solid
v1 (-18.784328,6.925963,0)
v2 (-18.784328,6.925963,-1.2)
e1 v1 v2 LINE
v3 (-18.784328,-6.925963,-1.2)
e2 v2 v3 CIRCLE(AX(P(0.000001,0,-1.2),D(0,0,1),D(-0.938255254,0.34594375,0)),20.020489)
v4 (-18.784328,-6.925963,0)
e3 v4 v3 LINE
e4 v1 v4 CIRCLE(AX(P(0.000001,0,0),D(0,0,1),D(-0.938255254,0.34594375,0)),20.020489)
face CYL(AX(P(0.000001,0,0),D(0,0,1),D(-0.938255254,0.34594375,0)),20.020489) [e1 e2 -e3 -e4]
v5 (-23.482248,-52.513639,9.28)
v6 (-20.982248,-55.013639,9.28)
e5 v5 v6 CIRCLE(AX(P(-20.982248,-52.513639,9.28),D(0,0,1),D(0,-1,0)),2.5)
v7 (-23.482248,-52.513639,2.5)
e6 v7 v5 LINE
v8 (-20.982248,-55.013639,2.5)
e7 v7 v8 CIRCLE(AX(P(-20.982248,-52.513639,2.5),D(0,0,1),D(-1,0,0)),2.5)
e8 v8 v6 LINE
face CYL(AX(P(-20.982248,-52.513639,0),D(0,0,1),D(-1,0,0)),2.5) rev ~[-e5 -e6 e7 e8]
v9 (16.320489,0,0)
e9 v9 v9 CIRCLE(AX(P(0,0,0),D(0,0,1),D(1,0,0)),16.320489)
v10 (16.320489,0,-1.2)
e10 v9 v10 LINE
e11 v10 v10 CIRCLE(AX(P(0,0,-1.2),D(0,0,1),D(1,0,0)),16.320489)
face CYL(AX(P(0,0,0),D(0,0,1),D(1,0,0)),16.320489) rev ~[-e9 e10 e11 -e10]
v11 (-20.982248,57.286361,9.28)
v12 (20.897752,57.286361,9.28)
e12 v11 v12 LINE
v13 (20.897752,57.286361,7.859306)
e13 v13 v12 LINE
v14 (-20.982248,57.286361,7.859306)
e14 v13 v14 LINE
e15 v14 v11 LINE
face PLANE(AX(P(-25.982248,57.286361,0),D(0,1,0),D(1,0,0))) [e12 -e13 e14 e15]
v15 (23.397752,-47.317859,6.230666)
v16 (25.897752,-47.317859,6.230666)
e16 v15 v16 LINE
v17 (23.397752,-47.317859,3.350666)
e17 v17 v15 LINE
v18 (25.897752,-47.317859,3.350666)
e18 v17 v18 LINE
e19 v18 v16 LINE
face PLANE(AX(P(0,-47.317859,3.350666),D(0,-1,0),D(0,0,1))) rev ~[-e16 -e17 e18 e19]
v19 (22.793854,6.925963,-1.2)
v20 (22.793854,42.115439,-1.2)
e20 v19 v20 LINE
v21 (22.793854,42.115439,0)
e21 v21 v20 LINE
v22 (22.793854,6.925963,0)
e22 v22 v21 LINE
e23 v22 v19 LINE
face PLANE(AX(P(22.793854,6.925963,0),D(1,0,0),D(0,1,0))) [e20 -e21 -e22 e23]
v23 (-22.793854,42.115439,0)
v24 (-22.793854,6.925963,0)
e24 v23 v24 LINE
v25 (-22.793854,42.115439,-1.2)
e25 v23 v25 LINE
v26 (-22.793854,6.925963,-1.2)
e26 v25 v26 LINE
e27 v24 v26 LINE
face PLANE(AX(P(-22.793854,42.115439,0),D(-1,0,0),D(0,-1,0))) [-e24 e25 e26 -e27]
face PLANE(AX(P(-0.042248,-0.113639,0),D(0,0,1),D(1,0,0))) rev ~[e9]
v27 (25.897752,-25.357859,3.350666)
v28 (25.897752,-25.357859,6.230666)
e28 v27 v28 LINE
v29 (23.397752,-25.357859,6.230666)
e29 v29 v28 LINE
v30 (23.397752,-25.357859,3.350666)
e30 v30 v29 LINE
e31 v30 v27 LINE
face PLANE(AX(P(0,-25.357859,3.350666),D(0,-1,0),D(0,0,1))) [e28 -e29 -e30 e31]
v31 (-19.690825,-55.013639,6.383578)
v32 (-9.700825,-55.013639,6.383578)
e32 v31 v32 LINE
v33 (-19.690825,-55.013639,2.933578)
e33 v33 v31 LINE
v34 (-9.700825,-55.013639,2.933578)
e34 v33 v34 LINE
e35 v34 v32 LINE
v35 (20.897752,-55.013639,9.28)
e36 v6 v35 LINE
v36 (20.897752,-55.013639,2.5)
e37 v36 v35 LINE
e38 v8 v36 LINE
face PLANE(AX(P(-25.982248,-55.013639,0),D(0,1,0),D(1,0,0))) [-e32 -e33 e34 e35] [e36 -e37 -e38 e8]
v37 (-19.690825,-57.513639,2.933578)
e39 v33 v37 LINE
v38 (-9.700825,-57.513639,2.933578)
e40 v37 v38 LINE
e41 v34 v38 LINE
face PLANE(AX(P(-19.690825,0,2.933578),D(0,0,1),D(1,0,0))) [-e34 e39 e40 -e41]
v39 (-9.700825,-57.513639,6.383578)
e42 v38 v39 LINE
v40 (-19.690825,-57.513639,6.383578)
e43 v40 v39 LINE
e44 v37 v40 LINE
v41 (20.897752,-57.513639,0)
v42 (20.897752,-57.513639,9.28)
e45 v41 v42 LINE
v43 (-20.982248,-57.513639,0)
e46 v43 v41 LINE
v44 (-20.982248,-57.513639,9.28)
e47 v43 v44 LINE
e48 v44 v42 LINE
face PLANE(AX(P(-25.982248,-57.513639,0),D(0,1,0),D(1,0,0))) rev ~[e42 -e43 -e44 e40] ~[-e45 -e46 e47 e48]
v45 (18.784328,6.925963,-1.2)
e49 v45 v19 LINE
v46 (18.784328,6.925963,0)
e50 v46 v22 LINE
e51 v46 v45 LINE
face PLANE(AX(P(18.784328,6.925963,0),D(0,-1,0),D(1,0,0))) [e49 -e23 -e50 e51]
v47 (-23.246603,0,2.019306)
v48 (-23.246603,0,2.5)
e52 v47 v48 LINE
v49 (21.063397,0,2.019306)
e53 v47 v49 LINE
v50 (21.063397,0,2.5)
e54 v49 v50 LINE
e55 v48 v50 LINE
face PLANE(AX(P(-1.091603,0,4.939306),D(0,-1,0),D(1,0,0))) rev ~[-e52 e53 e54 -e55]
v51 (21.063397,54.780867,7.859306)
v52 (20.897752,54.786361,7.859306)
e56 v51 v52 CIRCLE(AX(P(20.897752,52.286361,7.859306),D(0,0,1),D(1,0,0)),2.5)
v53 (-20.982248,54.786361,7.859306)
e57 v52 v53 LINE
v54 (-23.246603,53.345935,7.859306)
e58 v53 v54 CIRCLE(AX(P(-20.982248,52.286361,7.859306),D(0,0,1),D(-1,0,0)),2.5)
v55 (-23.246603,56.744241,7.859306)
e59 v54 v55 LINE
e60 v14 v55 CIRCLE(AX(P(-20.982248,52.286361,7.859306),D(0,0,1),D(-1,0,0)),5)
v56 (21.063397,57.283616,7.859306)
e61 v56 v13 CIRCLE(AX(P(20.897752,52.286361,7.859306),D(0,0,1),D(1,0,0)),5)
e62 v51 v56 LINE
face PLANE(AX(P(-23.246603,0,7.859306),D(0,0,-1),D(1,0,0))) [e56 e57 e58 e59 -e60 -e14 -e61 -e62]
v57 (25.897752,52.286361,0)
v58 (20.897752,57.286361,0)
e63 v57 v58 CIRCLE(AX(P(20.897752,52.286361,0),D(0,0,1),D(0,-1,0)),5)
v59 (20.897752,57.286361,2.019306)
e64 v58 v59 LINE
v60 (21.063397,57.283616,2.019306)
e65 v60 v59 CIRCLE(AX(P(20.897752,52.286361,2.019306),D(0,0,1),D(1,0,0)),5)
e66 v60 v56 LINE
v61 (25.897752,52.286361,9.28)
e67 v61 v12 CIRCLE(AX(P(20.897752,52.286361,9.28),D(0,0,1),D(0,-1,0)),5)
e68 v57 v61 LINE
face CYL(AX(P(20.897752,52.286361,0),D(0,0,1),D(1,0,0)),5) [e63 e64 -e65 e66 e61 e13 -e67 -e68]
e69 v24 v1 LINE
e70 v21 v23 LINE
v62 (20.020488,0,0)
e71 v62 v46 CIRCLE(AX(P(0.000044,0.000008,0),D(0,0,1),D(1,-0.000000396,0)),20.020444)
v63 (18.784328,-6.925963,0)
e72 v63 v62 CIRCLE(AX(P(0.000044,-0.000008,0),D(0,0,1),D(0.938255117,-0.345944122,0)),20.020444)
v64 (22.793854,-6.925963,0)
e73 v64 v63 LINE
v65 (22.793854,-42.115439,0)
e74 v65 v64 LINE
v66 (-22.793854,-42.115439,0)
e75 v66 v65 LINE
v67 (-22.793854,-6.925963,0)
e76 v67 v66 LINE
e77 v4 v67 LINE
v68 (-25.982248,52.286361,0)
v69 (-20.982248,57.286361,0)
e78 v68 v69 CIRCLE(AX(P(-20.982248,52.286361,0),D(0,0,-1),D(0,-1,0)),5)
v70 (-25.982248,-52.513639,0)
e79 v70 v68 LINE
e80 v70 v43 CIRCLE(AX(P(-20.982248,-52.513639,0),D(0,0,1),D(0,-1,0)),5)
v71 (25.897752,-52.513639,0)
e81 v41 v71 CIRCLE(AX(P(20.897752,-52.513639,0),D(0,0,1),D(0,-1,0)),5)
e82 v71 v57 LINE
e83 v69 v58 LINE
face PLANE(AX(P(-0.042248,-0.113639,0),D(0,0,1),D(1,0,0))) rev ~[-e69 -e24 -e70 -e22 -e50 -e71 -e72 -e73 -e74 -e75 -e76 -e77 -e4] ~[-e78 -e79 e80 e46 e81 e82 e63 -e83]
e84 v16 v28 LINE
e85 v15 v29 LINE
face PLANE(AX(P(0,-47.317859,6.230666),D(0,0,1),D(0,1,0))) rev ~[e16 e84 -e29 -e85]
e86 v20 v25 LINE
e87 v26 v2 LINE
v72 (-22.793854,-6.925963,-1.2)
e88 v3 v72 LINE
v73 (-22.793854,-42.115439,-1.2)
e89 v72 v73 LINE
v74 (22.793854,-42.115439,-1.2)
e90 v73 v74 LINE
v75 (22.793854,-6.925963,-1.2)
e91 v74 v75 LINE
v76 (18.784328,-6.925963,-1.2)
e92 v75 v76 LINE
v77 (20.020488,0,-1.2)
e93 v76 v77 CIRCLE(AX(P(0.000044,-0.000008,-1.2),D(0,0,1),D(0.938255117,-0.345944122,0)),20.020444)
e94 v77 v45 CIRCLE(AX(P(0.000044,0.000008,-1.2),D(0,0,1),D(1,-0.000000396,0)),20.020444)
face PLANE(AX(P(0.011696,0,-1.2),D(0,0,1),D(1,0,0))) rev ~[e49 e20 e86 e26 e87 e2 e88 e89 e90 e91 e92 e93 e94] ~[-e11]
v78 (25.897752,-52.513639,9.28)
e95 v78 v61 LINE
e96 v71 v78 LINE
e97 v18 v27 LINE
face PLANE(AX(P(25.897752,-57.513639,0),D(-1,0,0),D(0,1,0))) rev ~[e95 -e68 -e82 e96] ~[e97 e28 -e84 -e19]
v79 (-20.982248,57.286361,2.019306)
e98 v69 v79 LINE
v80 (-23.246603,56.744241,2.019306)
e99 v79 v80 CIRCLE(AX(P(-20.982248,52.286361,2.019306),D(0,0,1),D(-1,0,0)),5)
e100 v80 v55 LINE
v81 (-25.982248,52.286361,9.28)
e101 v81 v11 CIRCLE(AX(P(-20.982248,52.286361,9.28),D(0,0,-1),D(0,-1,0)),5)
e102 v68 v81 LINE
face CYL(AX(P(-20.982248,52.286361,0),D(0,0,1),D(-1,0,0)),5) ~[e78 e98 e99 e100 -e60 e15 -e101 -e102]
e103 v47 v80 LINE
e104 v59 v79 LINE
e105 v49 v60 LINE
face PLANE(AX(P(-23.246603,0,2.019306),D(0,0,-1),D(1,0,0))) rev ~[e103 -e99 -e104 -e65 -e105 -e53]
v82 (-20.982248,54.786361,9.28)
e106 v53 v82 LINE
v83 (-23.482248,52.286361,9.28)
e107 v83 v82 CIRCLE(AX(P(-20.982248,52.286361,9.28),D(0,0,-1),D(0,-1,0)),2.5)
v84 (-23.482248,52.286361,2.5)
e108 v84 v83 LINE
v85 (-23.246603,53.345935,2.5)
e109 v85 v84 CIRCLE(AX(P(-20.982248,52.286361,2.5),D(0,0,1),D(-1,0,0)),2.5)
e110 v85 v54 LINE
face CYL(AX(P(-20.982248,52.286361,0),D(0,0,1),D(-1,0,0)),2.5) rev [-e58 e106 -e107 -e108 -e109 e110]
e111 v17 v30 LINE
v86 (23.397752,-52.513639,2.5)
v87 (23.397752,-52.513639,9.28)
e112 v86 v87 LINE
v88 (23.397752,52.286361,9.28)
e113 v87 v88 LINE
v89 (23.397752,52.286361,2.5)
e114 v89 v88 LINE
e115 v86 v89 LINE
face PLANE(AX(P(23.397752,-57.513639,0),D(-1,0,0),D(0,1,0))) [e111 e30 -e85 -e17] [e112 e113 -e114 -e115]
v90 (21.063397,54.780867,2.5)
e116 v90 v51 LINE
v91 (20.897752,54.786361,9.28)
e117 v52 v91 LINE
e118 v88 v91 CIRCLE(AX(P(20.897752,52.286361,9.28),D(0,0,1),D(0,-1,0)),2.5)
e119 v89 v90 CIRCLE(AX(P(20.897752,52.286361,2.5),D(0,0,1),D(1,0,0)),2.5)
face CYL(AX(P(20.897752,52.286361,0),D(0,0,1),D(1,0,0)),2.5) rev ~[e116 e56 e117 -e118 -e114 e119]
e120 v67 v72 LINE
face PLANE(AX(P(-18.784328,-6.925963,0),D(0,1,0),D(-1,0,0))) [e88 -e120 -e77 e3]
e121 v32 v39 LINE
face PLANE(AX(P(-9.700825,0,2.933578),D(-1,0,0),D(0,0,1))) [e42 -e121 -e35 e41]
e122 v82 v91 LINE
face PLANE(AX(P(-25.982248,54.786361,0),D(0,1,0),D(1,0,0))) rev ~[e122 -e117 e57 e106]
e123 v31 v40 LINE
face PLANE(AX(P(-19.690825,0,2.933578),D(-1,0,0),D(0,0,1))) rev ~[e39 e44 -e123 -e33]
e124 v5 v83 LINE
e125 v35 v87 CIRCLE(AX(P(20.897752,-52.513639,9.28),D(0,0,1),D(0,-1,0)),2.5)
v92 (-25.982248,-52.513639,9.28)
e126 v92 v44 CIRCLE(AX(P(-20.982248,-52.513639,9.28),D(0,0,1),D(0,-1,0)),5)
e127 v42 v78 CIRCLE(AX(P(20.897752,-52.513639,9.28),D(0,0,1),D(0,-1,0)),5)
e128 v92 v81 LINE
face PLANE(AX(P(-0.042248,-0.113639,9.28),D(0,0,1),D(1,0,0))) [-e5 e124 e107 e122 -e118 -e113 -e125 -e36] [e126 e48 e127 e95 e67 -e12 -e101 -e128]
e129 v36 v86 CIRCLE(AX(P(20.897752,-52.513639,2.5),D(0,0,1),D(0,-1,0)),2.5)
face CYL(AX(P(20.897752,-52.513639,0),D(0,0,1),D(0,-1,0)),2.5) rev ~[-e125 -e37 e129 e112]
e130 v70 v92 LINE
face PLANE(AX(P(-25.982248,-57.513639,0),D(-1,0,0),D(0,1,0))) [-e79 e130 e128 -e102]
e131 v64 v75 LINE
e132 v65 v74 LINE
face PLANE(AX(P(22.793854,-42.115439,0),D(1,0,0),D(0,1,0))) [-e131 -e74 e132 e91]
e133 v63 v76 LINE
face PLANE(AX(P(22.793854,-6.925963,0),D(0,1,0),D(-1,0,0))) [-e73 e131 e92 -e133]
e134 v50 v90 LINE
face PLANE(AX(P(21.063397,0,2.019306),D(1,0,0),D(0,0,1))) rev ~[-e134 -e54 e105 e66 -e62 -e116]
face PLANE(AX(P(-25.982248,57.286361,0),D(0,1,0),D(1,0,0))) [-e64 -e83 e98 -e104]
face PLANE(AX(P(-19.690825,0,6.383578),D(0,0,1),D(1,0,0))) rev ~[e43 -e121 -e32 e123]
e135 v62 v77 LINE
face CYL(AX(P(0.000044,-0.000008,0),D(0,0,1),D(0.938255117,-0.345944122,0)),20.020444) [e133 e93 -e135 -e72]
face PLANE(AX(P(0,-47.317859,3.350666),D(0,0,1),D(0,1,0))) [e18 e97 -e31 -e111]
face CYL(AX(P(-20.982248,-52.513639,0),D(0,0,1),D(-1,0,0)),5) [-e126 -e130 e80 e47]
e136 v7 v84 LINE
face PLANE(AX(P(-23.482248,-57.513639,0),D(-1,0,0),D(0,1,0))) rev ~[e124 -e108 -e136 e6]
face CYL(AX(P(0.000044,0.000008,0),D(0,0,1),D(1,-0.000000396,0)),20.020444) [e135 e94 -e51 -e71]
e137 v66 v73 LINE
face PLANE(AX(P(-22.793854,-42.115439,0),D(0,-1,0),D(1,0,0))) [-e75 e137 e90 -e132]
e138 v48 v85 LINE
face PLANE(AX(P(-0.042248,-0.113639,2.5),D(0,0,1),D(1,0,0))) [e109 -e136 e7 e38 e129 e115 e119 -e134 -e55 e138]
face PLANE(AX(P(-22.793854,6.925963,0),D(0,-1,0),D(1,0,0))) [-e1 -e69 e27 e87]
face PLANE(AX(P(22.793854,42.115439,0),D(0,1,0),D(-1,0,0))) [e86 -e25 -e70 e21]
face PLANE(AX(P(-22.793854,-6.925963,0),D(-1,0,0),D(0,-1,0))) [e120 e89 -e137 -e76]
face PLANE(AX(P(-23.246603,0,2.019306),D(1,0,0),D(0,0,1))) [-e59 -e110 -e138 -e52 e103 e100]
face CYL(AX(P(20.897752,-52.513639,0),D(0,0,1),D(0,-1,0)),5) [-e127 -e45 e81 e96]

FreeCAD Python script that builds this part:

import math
import FreeCAD as App
import Part
import Sketcher
Q = App.Units.Quantity


def edges_at(feature, points):
    """Names of the edges that pass closest to the given points."""
    edges = feature.Shape.Edges
    near = lambda p: min(range(len(edges)), key=lambda i: edges[i].distToShape(Part.Vertex(*p))[0])
    return sorted({f"Edge{near(p) + 1}" for p in points})


def faces_at(feature, points):
    """Names of the faces that lie closest to the given points."""
    faces = feature.Shape.Faces
    near = lambda p: min(range(len(faces)), key=lambda i: faces[i].distToShape(Part.Vertex(*p))[0])
    return sorted({f"Face{near(p) + 1}" for p in points})


def add_polygon(sketch, points):
    """Adds a closed chain of lines whose ends are joined by coincident constraints."""
    first, n = sketch.GeometryCount, len(points)
    for a, b in zip(points, points[1:] + points[:1]):
        sketch.addGeometry(Part.LineSegment(App.Vector(*a, 0), App.Vector(*b, 0)), False)
    for i in range(n):
        sketch.addConstraint(Sketcher.Constraint("Coincident", first + i, 2, first + (i + 1) % n, 1))

doc = App.newDocument("Part")
params = doc.addObject("Spreadsheet::Sheet", "Params")
for row, (alias, value) in enumerate([
    ("sketch1_height", "114.8 mm"),
    ("sketch1_width", "51.88 mm"),
    ("pad1_length", "9.28 mm"),
    ("fillet_radius", "5 mm"),
    ("thickness_wall", "2.5 mm"),
    ("sketch2_width", "9.99 mm"),
    ("sketch2_height", "3.45 mm"),
    ("pocket1_length", "69.5 mm"),
    ("sketch3_width", "21.96 mm"),
    ("sketch3_height", "2.88 mm"),
    ("pocket2_length", "36.6 mm"),
    ("sketch4_width", "44.31 mm"),
    ("sketch4_height", "5.84 mm"),
    ("pocket3_length", "65.7 mm"),
    ("pad2_length", "1.2 mm"),
], start=1):
    params.set(f"A{row}", alias)
    params.set(f"B{row}", "=" + value)
    params.setAlias(f"B{row}", alias)

body = doc.addObject("PartDesign::Body", "Body")

# Sketch on XY plane
sketch1 = body.newObject("Sketcher::SketchObject", "Sketch")
sketch1.AttachmentSupport = (doc.getObject("XY_Plane"), [""])
sketch1.MapMode = "FlatFace"
add_polygon(sketch1, [(-26, 57), (-26, -58), (26, -58), (26, 57)])  # lines 0-3
sketch1.addConstraint([
    Sketcher.Constraint("Vertical", 0),
    Sketcher.Constraint("Horizontal", 1),
    Sketcher.Constraint("Vertical", 2),
    Sketcher.Constraint("Horizontal", 3),
    Sketcher.Constraint("DistanceY", 0, 2, 0, 1, Q("114.8 mm")),
    Sketcher.Constraint("DistanceX", 1, 1, 1, 2, Q("51.88 mm")),
    Sketcher.Constraint("DistanceY", 0, 2, -1, 1, Q("57.513639 mm")),
    Sketcher.Constraint("DistanceX", 0, 2, -1, 1, Q("25.982248 mm")),
])
sketch1.setExpression("Constraints[8]", "Params.sketch1_height")
sketch1.setExpression("Constraints[9]", "Params.sketch1_width")
pad1 = body.newObject("PartDesign::Pad", "Pad")
pad1.Profile = sketch1
pad1.setExpression("Length", "Params.pad1_length")
doc.recompute()

fillet = body.newObject("PartDesign::Fillet", "Fillet")
fillet.Base = (pad1, edges_at(pad1, [
    (25.898, 57.286, 4.64),
    (25.898, -57.514, 4.64),
    (-25.982, 57.286, 4.64),
    (-25.982, -57.514, 4.64),
]))
fillet.setExpression("Radius", "Params.fillet_radius")
doc.recompute()

thickness = body.newObject("PartDesign::Thickness", "Thickness")
thickness.Base = (fillet, faces_at(fillet, [(-0.042, -0.114, 9.28)]))
thickness.setExpression("Value", "Params.thickness_wall")
thickness.Reversed = True
thickness.Join = "Arc"

# Sketch on XZ plane
sketch2 = body.newObject("Sketcher::SketchObject", "Sketch001")
sketch2.AttachmentSupport = (doc.getObject("XZ_Plane"), [""])
sketch2.MapMode = "FlatFace"
add_polygon(sketch2, [(-19.7, 6.4), (-19.7, 2.9), (-9.7, 2.9), (-9.7, 6.4)])  # lines 0-3
sketch2.addConstraint([
    Sketcher.Constraint("Vertical", 0),
    Sketcher.Constraint("Horizontal", 1),
    Sketcher.Constraint("Vertical", 2),
    Sketcher.Constraint("Horizontal", 3),
    Sketcher.Constraint("DistanceX", 1, 1, 1, 2, Q("9.99 mm")),
    Sketcher.Constraint("DistanceY", 0, 2, 0, 1, Q("3.45 mm")),
    Sketcher.Constraint("DistanceX", 0, 2, -1, 1, Q("19.690825 mm")),
    Sketcher.Constraint("DistanceY", -1, 1, 0, 2, Q("2.933578 mm")),
])
sketch2.setExpression("Constraints[8]", "Params.sketch2_width")
sketch2.setExpression("Constraints[9]", "Params.sketch2_height")
pocket1 = body.newObject("PartDesign::Pocket", "Pocket")
pocket1.Profile = sketch2
pocket1.setExpression("Length", "Params.pocket1_length")
pocket1.Reversed = True

# Sketch on YZ plane
sketch3 = body.newObject("Sketcher::SketchObject", "Sketch002")
sketch3.AttachmentSupport = (doc.getObject("YZ_Plane"), [""])
sketch3.MapMode = "FlatFace"
add_polygon(sketch3, [(-47.3, 6.2), (-47.3, 3.4), (-25.4, 3.4), (-25.4, 6.2)])  # lines 0-3
sketch3.addConstraint([
    Sketcher.Constraint("Vertical", 0),
    Sketcher.Constraint("Horizontal", 1),
    Sketcher.Constraint("Vertical", 2),
    Sketcher.Constraint("Horizontal", 3),
    Sketcher.Constraint("DistanceX", 1, 1, 1, 2, Q("21.96 mm")),
    Sketcher.Constraint("DistanceY", 0, 2, 0, 1, Q("2.88 mm")),
    Sketcher.Constraint("DistanceX", 0, 2, -1, 1, Q("47.317859 mm")),
    Sketcher.Constraint("DistanceY", -1, 1, 0, 2, Q("3.350666 mm")),
])
sketch3.setExpression("Constraints[8]", "Params.sketch3_width")
sketch3.setExpression("Constraints[9]", "Params.sketch3_height")
pocket2 = body.newObject("PartDesign::Pocket", "Pocket001")
pocket2.Profile = sketch3
pocket2.setExpression("Length", "Params.pocket2_length")
pocket2.Reversed = True

# Sketch on XZ plane
sketch4 = body.newObject("Sketcher::SketchObject", "Sketch003")
sketch4.AttachmentSupport = (doc.getObject("XZ_Plane"), [""])
sketch4.MapMode = "FlatFace"
add_polygon(sketch4, [(-23, 8), (-23, 2), (21, 2), (21, 8)])  # lines 0-3
sketch4.addConstraint([
    Sketcher.Constraint("Vertical", 0),
    Sketcher.Constraint("Horizontal", 1),
    Sketcher.Constraint("Vertical", 2),
    Sketcher.Constraint("Horizontal", 3),
    Sketcher.Constraint("DistanceX", 1, 1, 1, 2, Q("44.31 mm")),
    Sketcher.Constraint("DistanceY", 0, 2, 0, 1, Q("5.84 mm")),
    Sketcher.Constraint("DistanceX", 0, 2, -1, 1, Q("23.246603 mm")),
    Sketcher.Constraint("DistanceY", -1, 1, 0, 2, Q("2.019306 mm")),
])
sketch4.setExpression("Constraints[8]", "Params.sketch4_width")
sketch4.setExpression("Constraints[9]", "Params.sketch4_height")
pocket3 = body.newObject("PartDesign::Pocket", "Pocket002")
pocket3.Profile = sketch4
pocket3.setExpression("Length", "Params.pocket3_length")

# Sketch on XY plane
sketch5 = body.newObject("Sketcher::SketchObject", "Sketch004")
sketch5.AttachmentSupport = (doc.getObject("XY_Plane"), [""])
sketch5.MapMode = "FlatFace"
sketch5.addGeometry([
    Part.ArcOfCircle(Part.Circle(App.Vector(0, 0, 0), App.Vector(0, 0, 1), 20), math.radians(-20), math.radians(0)),  # 0
    Part.ArcOfCircle(Part.Circle(App.Vector(0, 0, 0), App.Vector(0, 0, 1), 20), math.radians(0), math.radians(20)),  # 1
    Part.LineSegment(App.Vector(18.8, 6.9, 0), App.Vector(22.8, 6.9, 0)),  # 2
    Part.LineSegment(App.Vector(22.8, 6.9, 0), App.Vector(22.8, 42.1, 0)),  # 3
    Part.LineSegment(App.Vector(22.8, 42.1, 0), App.Vector(-22.8, 42.1, 0)),  # 4
    Part.LineSegment(App.Vector(-22.8, 42.1, 0), App.Vector(-22.8, 6.9, 0)),  # 5
    Part.LineSegment(App.Vector(-22.8, 6.9, 0), App.Vector(-18.8, 6.9, 0)),  # 6
    Part.ArcOfCircle(Part.Circle(App.Vector(0, 0, 0), App.Vector(0, 0, 1), 20), math.radians(160), math.radians(200)),  # 7
    Part.LineSegment(App.Vector(-18.8, -6.9, 0), App.Vector(-22.8, -6.9, 0)),  # 8
    Part.LineSegment(App.Vector(-22.8, -6.9, 0), App.Vector(-22.8, -42.1, 0)),  # 9
    Part.LineSegment(App.Vector(-22.8, -42.1, 0), App.Vector(22.8, -42.1, 0)),  # 10
    Part.LineSegment(App.Vector(22.8, -42.1, 0), App.Vector(22.8, -6.9, 0)),  # 11
    Part.LineSegment(App.Vector(22.8, -6.9, 0), App.Vector(18.8, -6.9, 0)),  # 12
    Part.Circle(App.Vector(0, 0, 0), App.Vector(0, 0, 1), 16.3),  # 13
], False)
sketch5.addConstraint([
    Sketcher.Constraint("Tangent", 0, 2, 1, 1),
    Sketcher.Constraint("Coincident", 1, 2, 2, 1),
    Sketcher.Constraint("Coincident", 2, 2, 3, 1),
    Sketcher.Constraint("Coincident", 3, 2, 4, 1),
    Sketcher.Constraint("Coincident", 4, 2, 5, 1),
    Sketcher.Constraint("Coincident", 5, 2, 6, 1),
    Sketcher.Constraint("Coincident", 6, 2, 7, 1),
    Sketcher.Constraint("Coincident", 7, 2, 8, 1),
    Sketcher.Constraint("Coincident", 8, 2, 9, 1),
    Sketcher.Constraint("Coincident", 9, 2, 10, 1),
    Sketcher.Constraint("Coincident", 10, 2, 11, 1),
    Sketcher.Constraint("Coincident", 11, 2, 12, 1),
    Sketcher.Constraint("Coincident", 12, 2, 0, 1),
    Sketcher.Constraint("Horizontal", 2),
    Sketcher.Constraint("Vertical", 3),
    Sketcher.Constraint("Horizontal", 4),
    Sketcher.Constraint("Vertical", 5),
    Sketcher.Constraint("Horizontal", 6),
    Sketcher.Constraint("Horizontal", 8),
    Sketcher.Constraint("Vertical", 9),
    Sketcher.Constraint("Horizontal", 10),
    Sketcher.Constraint("Vertical", 11),
    Sketcher.Constraint("Horizontal", 12),
    Sketcher.Constraint("Coincident", 7, 3, -1, 1),
    Sketcher.Constraint("Coincident", 13, 3, -1, 1),
    Sketcher.Constraint("Equal", 0, 1),
    Sketcher.Constraint("Symmetric", 1, 2, 7, 2, -1, 1),
    Sketcher.Constraint("Symmetric", 3, 2, 9, 2, -1, 1),
    Sketcher.Constraint("Symmetric", 5, 2, 11, 2, -1, 1),
    Sketcher.Constraint("Symmetric", 2, 2, 5, 2, -2),
    Sketcher.Constraint("PointOnObject", 0, 2, -1),
    Sketcher.Constraint("Vertical", 1, 2, 12, 2),
    Sketcher.Constraint("Radius", 7, Q("20.020489 mm")),
    Sketcher.Constraint("Diameter", 13, Q("32.640978 mm")),
    Sketcher.Constraint("Radius", 0, Q("20.020444 mm")),
    Sketcher.Constraint("DistanceX", 2, 1, 2, 2, Q("4.009526 mm")),
    Sketcher.Constraint("DistanceX", 4, 2, 4, 1, Q("45.587708 mm")),
    Sketcher.Constraint("DistanceY", 3, 1, 3, 2, Q("35.189476 mm")),
])
pad2 = body.newObject("PartDesign::Pad", "Pad001")
pad2.Profile = sketch5
pad2.setExpression("Length", "Params.pad2_length")
pad2.Reversed = True

doc.recompute()
